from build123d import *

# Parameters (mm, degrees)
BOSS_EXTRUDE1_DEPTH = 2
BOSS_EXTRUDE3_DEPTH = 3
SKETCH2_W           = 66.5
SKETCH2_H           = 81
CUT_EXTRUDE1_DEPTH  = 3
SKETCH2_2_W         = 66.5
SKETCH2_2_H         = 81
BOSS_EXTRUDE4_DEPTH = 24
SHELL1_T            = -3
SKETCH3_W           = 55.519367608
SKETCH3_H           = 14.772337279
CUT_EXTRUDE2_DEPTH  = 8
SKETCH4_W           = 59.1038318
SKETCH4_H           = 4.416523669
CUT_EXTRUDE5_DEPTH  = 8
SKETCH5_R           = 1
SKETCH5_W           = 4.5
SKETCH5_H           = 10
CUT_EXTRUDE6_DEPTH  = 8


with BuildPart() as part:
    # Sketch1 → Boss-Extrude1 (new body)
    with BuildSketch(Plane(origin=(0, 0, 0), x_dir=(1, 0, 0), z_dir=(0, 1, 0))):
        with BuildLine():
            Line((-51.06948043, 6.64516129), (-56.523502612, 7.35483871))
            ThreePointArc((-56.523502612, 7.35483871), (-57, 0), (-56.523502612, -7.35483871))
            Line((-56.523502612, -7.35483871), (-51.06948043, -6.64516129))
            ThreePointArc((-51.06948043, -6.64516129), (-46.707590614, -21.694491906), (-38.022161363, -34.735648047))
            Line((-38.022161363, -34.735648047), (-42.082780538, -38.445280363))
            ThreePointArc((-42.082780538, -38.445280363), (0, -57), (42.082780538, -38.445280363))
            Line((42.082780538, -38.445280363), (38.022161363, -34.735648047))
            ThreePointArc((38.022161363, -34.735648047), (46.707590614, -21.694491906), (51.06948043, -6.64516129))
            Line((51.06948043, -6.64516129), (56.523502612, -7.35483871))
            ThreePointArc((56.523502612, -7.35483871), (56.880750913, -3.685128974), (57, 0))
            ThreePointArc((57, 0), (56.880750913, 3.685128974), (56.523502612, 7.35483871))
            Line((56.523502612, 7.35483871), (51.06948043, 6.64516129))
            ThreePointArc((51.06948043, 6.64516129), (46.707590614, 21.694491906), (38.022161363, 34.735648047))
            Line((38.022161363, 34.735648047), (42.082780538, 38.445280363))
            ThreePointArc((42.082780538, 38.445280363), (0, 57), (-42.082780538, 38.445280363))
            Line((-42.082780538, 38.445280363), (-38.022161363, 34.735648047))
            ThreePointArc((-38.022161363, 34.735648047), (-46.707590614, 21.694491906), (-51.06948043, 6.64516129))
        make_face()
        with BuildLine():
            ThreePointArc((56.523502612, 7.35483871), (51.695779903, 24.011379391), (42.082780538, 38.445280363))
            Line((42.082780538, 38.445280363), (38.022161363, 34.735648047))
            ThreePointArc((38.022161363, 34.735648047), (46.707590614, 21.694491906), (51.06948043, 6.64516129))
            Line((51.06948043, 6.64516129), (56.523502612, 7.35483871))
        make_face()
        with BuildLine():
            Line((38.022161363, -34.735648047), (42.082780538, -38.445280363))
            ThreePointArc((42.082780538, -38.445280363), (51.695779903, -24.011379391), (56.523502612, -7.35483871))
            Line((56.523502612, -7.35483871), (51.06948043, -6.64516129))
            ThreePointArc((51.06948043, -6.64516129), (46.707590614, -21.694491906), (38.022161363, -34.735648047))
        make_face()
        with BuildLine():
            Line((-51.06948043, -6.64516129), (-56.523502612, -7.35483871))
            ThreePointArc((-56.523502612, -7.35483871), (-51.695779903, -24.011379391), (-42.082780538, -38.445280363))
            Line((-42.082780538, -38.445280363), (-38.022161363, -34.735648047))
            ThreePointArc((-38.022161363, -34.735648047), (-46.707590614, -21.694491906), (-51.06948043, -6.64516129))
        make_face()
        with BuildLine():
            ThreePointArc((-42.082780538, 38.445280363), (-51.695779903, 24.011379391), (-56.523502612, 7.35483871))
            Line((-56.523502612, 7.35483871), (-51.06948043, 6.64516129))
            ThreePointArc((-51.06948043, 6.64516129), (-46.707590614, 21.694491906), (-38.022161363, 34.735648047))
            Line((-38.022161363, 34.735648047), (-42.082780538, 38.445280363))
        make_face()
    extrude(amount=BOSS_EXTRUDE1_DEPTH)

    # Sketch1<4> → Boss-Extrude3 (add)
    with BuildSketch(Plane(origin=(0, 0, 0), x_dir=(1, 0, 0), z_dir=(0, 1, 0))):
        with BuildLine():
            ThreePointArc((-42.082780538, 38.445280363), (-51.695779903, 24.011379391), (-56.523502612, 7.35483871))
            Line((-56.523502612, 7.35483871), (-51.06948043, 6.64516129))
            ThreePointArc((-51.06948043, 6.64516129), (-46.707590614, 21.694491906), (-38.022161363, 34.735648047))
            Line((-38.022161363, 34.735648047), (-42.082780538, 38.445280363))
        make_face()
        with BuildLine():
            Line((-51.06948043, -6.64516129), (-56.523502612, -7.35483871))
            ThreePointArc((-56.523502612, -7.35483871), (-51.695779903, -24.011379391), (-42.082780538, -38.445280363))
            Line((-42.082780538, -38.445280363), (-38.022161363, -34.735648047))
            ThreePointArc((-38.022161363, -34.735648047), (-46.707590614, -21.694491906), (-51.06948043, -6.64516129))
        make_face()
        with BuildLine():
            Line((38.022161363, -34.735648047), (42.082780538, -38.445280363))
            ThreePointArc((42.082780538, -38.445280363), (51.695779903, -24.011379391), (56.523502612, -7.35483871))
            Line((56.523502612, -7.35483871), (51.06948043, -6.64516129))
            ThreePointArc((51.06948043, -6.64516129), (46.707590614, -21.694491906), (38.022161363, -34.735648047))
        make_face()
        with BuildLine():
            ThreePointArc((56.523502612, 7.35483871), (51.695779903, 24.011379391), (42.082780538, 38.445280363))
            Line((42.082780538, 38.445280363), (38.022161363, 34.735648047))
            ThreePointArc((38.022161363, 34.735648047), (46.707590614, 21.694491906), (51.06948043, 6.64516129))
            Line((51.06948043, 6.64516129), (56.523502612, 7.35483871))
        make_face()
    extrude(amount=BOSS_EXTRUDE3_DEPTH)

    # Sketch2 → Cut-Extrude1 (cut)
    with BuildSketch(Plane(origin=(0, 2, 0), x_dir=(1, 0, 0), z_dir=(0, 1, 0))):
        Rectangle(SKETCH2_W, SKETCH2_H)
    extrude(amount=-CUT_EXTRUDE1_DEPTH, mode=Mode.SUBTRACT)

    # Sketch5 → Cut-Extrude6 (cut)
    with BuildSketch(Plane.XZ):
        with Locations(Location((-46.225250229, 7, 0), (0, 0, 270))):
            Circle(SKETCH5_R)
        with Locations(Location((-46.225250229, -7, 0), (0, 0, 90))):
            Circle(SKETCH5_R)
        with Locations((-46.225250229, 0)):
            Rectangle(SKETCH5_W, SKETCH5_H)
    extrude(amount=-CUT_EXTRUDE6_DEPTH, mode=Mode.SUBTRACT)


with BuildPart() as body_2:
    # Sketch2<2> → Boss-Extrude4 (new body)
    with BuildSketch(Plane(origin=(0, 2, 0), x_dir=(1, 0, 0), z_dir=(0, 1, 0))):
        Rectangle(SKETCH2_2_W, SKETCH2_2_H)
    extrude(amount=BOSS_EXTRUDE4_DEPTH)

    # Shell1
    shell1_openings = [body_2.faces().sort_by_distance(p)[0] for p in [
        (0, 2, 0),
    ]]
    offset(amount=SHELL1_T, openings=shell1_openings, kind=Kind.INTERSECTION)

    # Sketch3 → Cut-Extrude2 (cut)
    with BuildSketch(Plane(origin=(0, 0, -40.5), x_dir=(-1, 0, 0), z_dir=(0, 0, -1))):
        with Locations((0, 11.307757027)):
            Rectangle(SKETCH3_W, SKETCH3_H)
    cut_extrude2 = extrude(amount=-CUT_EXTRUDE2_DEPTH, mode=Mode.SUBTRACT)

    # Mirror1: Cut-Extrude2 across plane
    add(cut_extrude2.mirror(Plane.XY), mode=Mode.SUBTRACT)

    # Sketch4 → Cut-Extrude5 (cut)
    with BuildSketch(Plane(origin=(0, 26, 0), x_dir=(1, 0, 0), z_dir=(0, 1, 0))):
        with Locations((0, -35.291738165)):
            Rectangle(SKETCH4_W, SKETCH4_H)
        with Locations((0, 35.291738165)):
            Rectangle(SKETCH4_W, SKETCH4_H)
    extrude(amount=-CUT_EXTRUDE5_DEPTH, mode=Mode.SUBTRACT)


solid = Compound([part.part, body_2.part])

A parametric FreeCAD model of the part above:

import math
import FreeCAD as App
import Part
import Sketcher

V = App.Vector
Q = App.Units.Quantity


def faces_at(feature, points):
    """Names of the faces that lie closest to the given points."""
    faces = feature.Shape.Faces
    near = lambda p: min(range(len(faces)), key=lambda i: faces[i].distToShape(Part.Vertex(*p))[0])
    return sorted({f"Face{near(p) + 1}" for p in points})

doc = App.newDocument("Part")
params = doc.addObject("Spreadsheet::Sheet", "Params")
for row, (alias, value) in enumerate([
    ("sketch1_radius", "57 mm"),
    ("pad1_length", "2 mm"),
    ("sketch2_radius", "57 mm"),
    ("sketch2_radius2", "51.5 mm"),
    ("pad2_length", "3 mm"),
    ("sketch3_height", "81 mm"),
    ("sketch3_width", "66.5 mm"),
    ("pocket1_length", "3 mm"),
    ("sketch4_diameter", "2 mm"),
    ("sketch4_height", "10 mm"),
    ("sketch4_width", "4.5 mm"),
    ("pocket2_length", "8 mm"),
    ("sketch5_height", "81 mm"),
    ("sketch5_width", "66.5 mm"),
    ("pad3_length", "24 mm"),
    ("thickness_wall", "3 mm"),
    ("pocket3_length", "8 mm"),
    ("pocket4_length", "8 mm"),
], start=1):
    params.set(f"A{row}", alias)
    params.set(f"B{row}", "=" + value)
    params.setAlias(f"B{row}", alias)

body = doc.addObject("PartDesign::Body", "Body")

sketch1 = body.newObject("Sketcher::SketchObject", "Sketch")
sketch1.AttachmentSupport = (doc.getObject("XZ_Plane"), [""])
sketch1.MapMode = "FlatFace"
sketch1.addGeometry(Part.ArcOfCircle(Part.Circle(V(0, 0, 0), V(0, 0, 1), 57), math.radians(172.59), math.radians(187.41)), False)
sketch1.addGeometry(Part.ArcOfCircle(Part.Circle(V(0, 0, 0), V(0, 0, 1), 57), math.radians(138), math.radians(173)), False)
sketch1.addGeometry(Part.ArcOfCircle(Part.Circle(V(0, 0, 0), V(0, 0, 1), 57), math.radians(42), math.radians(138)), False)
sketch1.addGeometry(Part.ArcOfCircle(Part.Circle(V(0, 0, 0), V(0, 0, 1), 57), math.radians(7), math.radians(42)), False)
sketch1.addGeometry(Part.ArcOfCircle(Part.Circle(V(0, 0, 0), V(0, 0, 1), 57), math.radians(0), math.radians(7.41)), False)
sketch1.addGeometry(Part.ArcOfCircle(Part.Circle(V(0, 0, 0), V(0, 0, 1), 57), math.radians(-7.41), math.radians(0)), False)
sketch1.addGeometry(Part.ArcOfCircle(Part.Circle(V(0, 0, 0), V(0, 0, 1), 57), math.radians(-42), math.radians(-7)), False)
sketch1.addGeometry(Part.ArcOfCircle(Part.Circle(V(0, 0, 0), V(0, 0, 1), 57), math.radians(-138), math.radians(-42)), False)
sketch1.addGeometry(Part.ArcOfCircle(Part.Circle(V(0, 0, 0), V(0, 0, 1), 57), math.radians(-173), math.radians(-138)), False)
sketch1.addConstraint(Sketcher.Constraint("Tangent", 0, 1, 1, 2))
sketch1.addConstraint(Sketcher.Constraint("Tangent", 1, 1, 2, 2))
sketch1.addConstraint(Sketcher.Constraint("Tangent", 2, 1, 3, 2))
sketch1.addConstraint(Sketcher.Constraint("Tangent", 3, 1, 4, 2))
sketch1.addConstraint(Sketcher.Constraint("Tangent", 4, 1, 5, 2))
sketch1.addConstraint(Sketcher.Constraint("Tangent", 5, 1, 6, 2))
sketch1.addConstraint(Sketcher.Constraint("Tangent", 6, 1, 7, 2))
sketch1.addConstraint(Sketcher.Constraint("Tangent", 7, 1, 8, 2))
sketch1.addConstraint(Sketcher.Constraint("Tangent", 8, 1, 0, 2))
sketch1.addConstraint(Sketcher.Constraint("Coincident", 0, 3, -1, 1))
sketch1.addConstraint(Sketcher.Constraint("Coincident", 2, 3, -1, 1))
sketch1.addConstraint(Sketcher.Constraint("Coincident", 4, 3, -1, 1))
sketch1.addConstraint(Sketcher.Constraint("Coincident", 6, 3, -1, 1))
sketch1.addConstraint(Sketcher.Constraint("PointOnObject", 4, 1, -1))
sketch1.addConstraint(Sketcher.Constraint("Horizontal", 1, 1, 2, 1))
sketch1.addConstraint(Sketcher.Constraint("Horizontal", 0, 1, 3, 1))
sketch1.addConstraint(Sketcher.Constraint("Horizontal", 6, 1, 7, 1))
sketch1.addConstraint(Sketcher.Constraint("Horizontal", 5, 1, 8, 1))
sketch1.addConstraint(Sketcher.Constraint("Vertical", 3, 1, 5, 1))
sketch1.addConstraint(Sketcher.Constraint("Vertical", 2, 1, 6, 1))
sketch1.addConstraint(Sketcher.Constraint("Radius", 0, Q("57 mm")))
sketch1.addConstraint(Sketcher.Constraint("DistanceY", -1, 1, 0, 1, Q("7.354839 mm")))
sketch1.addConstraint(Sketcher.Constraint("DistanceX", 1, 1, -1, 1, Q("42.082781 mm")))
sketch1.setExpression("Constraints[20]", "Params.sketch1_radius")
pad1 = body.newObject("PartDesign::Pad", "Pad")
pad1.Profile = sketch1
pad1.setExpression("Length", "Params.pad1_length")
pad1.Reversed = True

sketch2 = body.newObject("Sketcher::SketchObject", "Sketch001")
sketch2.AttachmentSupport = (doc.getObject("XZ_Plane"), [""])
sketch2.MapMode = "FlatFace"
sketch2.addGeometry(Part.ArcOfCircle(Part.Circle(V(0, 0, 0), V(0, 0, 1), 57), math.radians(-173), math.radians(-138)), False)
sketch2.addGeometry(Part.LineSegment(V(-57, -7, 0), V(-51, -7, 0)), False)
sketch2.addGeometry(Part.ArcOfCircle(Part.Circle(V(0, 0, 0), V(0, 0, 1), 51), math.radians(-173), math.radians(-138)), False)
sketch2.addGeometry(Part.LineSegment(V(-38, -35, 0), V(-42, -38, 0)), False)
sketch2.addGeometry(Part.LineSegment(V(-51, 7, 0), V(-57, 7, 0)), False)
sketch2.addGeometry(Part.ArcOfCircle(Part.Circle(V(0, 0, 0), V(0, 0, 1), 57), math.radians(138), math.radians(173)), False)
sketch2.addGeometry(Part.LineSegment(V(-42, 38, 0), V(-38, 35, 0)), False)
sketch2.addGeometry(Part.ArcOfCircle(Part.Circle(V(0, 0, 0), V(0, 0, 1), 51), math.radians(138), math.radians(173)), False)
sketch2.addGeometry(Part.LineSegment(V(38, 35, 0), V(42, 38, 0)), False)
sketch2.addGeometry(Part.ArcOfCircle(Part.Circle(V(0, 0, 0), V(0, 0, 1), 57), math.radians(7), math.radians(42)), False)
sketch2.addGeometry(Part.LineSegment(V(57, 7, 0), V(51, 7, 0)), False)
sketch2.addGeometry(Part.ArcOfCircle(Part.Circle(V(0, 0, 0), V(0, 0, 1), 51), math.radians(7), math.radians(42)), False)
sketch2.addGeometry(Part.ArcOfCircle(Part.Circle(V(0, 0, 0), V(0, 0, 1), 57), math.radians(-42), math.radians(-7)), False)
sketch2.addGeometry(Part.LineSegment(V(42, -38, 0), V(38, -35, 0)), False)
sketch2.addGeometry(Part.ArcOfCircle(Part.Circle(V(0, 0, 0), V(0, 0, 1), 51), math.radians(-42), math.radians(-7)), False)
sketch2.addGeometry(Part.LineSegment(V(51, -7, 0), V(57, -7, 0)), False)
sketch2.addConstraint(Sketcher.Constraint("Coincident", 0, 1, 1, 1))
sketch2.addConstraint(Sketcher.Constraint("Coincident", 1, 2, 2, 1))
sketch2.addConstraint(Sketcher.Constraint("Coincident", 2, 2, 3, 1))
sketch2.addConstraint(Sketcher.Constraint("Coincident", 3, 2, 0, 2))
sketch2.addConstraint(Sketcher.Constraint("Coincident", 4, 2, 5, 2))
sketch2.addConstraint(Sketcher.Constraint("Coincident", 5, 1, 6, 1))
sketch2.addConstraint(Sketcher.Constraint("Coincident", 6, 2, 7, 1))
sketch2.addConstraint(Sketcher.Constraint("Coincident", 7, 2, 4, 1))
sketch2.addConstraint(Sketcher.Constraint("Coincident", 8, 2, 9, 2))
sketch2.addConstraint(Sketcher.Constraint("Coincident", 9, 1, 10, 1))
sketch2.addConstraint(Sketcher.Constraint("Coincident", 10, 2, 11, 1))
sketch2.addConstraint(Sketcher.Constraint("Coincident", 11, 2, 8, 1))
sketch2.addConstraint(Sketcher.Constraint("Coincident", 12, 1, 13, 1))
sketch2.addConstraint(Sketcher.Constraint("Coincident", 13, 2, 14, 1))
sketch2.addConstraint(Sketcher.Constraint("Coincident", 14, 2, 15, 1))
sketch2.addConstraint(Sketcher.Constraint("Coincident", 15, 2, 12, 2))
sketch2.addConstraint(Sketcher.Constraint("Coincident", 0, 3, -1, 1))
sketch2.addConstraint(Sketcher.Constraint("Coincident", 2, 3, -1, 1))
sketch2.addConstraint(Sketcher.Constraint("Coincident", 5, 3, -1, 1))
sketch2.addConstraint(Sketcher.Constraint("Coincident", 7, 3, -1, 1))
sketch2.addConstraint(Sketcher.Constraint("Coincident", 9, 3, -1, 1))
sketch2.addConstraint(Sketcher.Constraint("Coincident", 11, 3, -1, 1))
sketch2.addConstraint(Sketcher.Constraint("Coincident", 12, 3, -1, 1))
sketch2.addConstraint(Sketcher.Constraint("Coincident", 14, 3, -1, 1))
sketch2.addConstraint(Sketcher.Constraint("Equal", 0, 5))
sketch2.addConstraint(Sketcher.Constraint("Equal", 2, 7))
sketch2.addConstraint(Sketcher.Constraint("Equal", 5, 9))
sketch2.addConstraint(Sketcher.Constraint("Equal", 7, 11))
sketch2.addConstraint(Sketcher.Constraint("Equal", 9, 12))
sketch2.addConstraint(Sketcher.Constraint("Equal", 11, 14))
sketch2.addConstraint(Sketcher.Constraint("Parallel", 3, 8))
sketch2.addConstraint(Sketcher.Constraint("Parallel", 1, 10))
sketch2.addConstraint(Sketcher.Constraint("Parallel", 6, 13))
sketch2.addConstraint(Sketcher.Constraint("Parallel", 4, 15))
sketch2.addConstraint(Sketcher.Constraint("Horizontal", 5, 1, 8, 2))
sketch2.addConstraint(Sketcher.Constraint("Horizontal", 4, 2, 9, 1))
sketch2.addConstraint(Sketcher.Constraint("Horizontal", 7, 2, 10, 2))
sketch2.addConstraint(Sketcher.Constraint("Horizontal", 6, 2, 11, 2))
sketch2.addConstraint(Sketcher.Constraint("Horizontal", 3, 2, 12, 1))
sketch2.addConstraint(Sketcher.Constraint("Horizontal", 1, 2, 14, 2))
sketch2.addConstraint(Sketcher.Constraint("Vertical", 0, 1, 4, 2))
sketch2.addConstraint(Sketcher.Constraint("Vertical", 3, 2, 5, 1))
sketch2.addConstraint(Sketcher.Constraint("Radius", 0, Q("57 mm")))
sketch2.addConstraint(Sketcher.Constraint("Radius", 2, Q("51.5 mm")))
sketch2.addConstraint(Sketcher.Constraint("DistanceY", 1, 2, 4, 2, Q("14 mm")))
sketch2.addConstraint(Sketcher.Constraint("DistanceX", 1, 2, 3, 2, Q("8.9867 mm")))
sketch2.addConstraint(Sketcher.Constraint("DistanceY", 0, 1, -1, 1, Q("7.354839 mm")))
sketch2.addConstraint(Sketcher.Constraint("DistanceX", 2, 2, -1, 1, Q("38.022161 mm")))
sketch2.setExpression("Constraints[42]", "Params.sketch2_radius")
sketch2.setExpression("Constraints[43]", "Params.sketch2_radius2")
pad2 = body.newObject("PartDesign::Pad", "Pad001")
pad2.Profile = sketch2
pad2.setExpression("Length", "Params.pad2_length")
pad2.Reversed = True

sketch3 = body.newObject("Sketcher::SketchObject", "Sketch002")
sketch3.AttachmentSupport = (doc.getObject("XZ_Plane"), [""])
sketch3.MapMode = "FlatFace"
sketch3.AttachmentOffset = App.Placement(V(0, 0, -2), App.Rotation())
sketch3.addGeometry(Part.LineSegment(V(-33, -40, 0), V(-33, 40, 0)), False)
sketch3.addGeometry(Part.LineSegment(V(-33, 40, 0), V(33, 40, 0)), False)
sketch3.addGeometry(Part.LineSegment(V(33, 40, 0), V(33, -40, 0)), False)
sketch3.addGeometry(Part.LineSegment(V(33, -40, 0), V(-33, -40, 0)), False)
sketch3.addConstraint(Sketcher.Constraint("Coincident", 0, 2, 1, 1))
sketch3.addConstraint(Sketcher.Constraint("Coincident", 1, 2, 2, 1))
sketch3.addConstraint(Sketcher.Constraint("Coincident", 2, 2, 3, 1))
sketch3.addConstraint(Sketcher.Constraint("Coincident", 3, 2, 0, 1))
sketch3.addConstraint(Sketcher.Constraint("Vertical", 0))
sketch3.addConstraint(Sketcher.Constraint("Horizontal", 1))
sketch3.addConstraint(Sketcher.Constraint("Vertical", 2))
sketch3.addConstraint(Sketcher.Constraint("Horizontal", 3))
sketch3.addConstraint(Sketcher.Constraint("Symmetric", 0, 2, 2, 2, -1, 1))
sketch3.addConstraint(Sketcher.Constraint("DistanceY", 0, 1, 0, 2, Q("81 mm")))
sketch3.addConstraint(Sketcher.Constraint("DistanceX", 1, 1, 1, 2, Q("66.5 mm")))
sketch3.setExpression("Constraints[9]", "Params.sketch3_height")
sketch3.setExpression("Constraints[10]", "Params.sketch3_width")
pocket1 = body.newObject("PartDesign::Pocket", "Pocket")
pocket1.Profile = sketch3
pocket1.setExpression("Length", "Params.pocket1_length")
pocket1.Reversed = True

sketch4 = body.newObject("Sketcher::SketchObject", "Sketch003")
sketch4.AttachmentSupport = (doc.getObject("XZ_Plane"), [""])
sketch4.MapMode = "FlatFace"
sketch4.addGeometry(Part.Circle(V(-46.2, 7, 0), V(0, 0, 1), 1), False)
sketch4.addGeometry(Part.Circle(V(-46.2, -7, 0), V(0, 0, 1), 1), False)
sketch4.addGeometry(Part.LineSegment(V(-48.5, 5, 0), V(-48.5, -5, 0)), False)
sketch4.addGeometry(Part.LineSegment(V(-48.5, -5, 0), V(-44, -5, 0)), False)
sketch4.addGeometry(Part.LineSegment(V(-44, -5, 0), V(-44, 5, 0)), False)
sketch4.addGeometry(Part.LineSegment(V(-44, 5, 0), V(-48.5, 5, 0)), False)
sketch4.addConstraint(Sketcher.Constraint("Coincident", 2, 2, 3, 1))
sketch4.addConstraint(Sketcher.Constraint("Coincident", 3, 2, 4, 1))
sketch4.addConstraint(Sketcher.Constraint("Coincident", 4, 2, 5, 1))
sketch4.addConstraint(Sketcher.Constraint("Coincident", 5, 2, 2, 1))
sketch4.addConstraint(Sketcher.Constraint("Vertical", 2))
sketch4.addConstraint(Sketcher.Constraint("Horizontal", 3))
sketch4.addConstraint(Sketcher.Constraint("Vertical", 4))
sketch4.addConstraint(Sketcher.Constraint("Horizontal", 5))
sketch4.addConstraint(Sketcher.Constraint("Equal", 0, 1))
sketch4.addConstraint(Sketcher.Constraint("Symmetric", 0, 3, 1, 3, -1))
sketch4.addConstraint(Sketcher.Constraint("Diameter", 0, Q("2 mm")))
sketch4.addConstraint(Sketcher.Constraint("DistanceY", 2, 2, 2, 1, Q("10 mm")))
sketch4.addConstraint(Sketcher.Constraint("DistanceX", 3, 1, 3, 2, Q("4.5 mm")))
sketch4.addConstraint(Sketcher.Constraint("DistanceY", -1, 1, 0, 3, Q("7 mm")))
sketch4.addConstraint(Sketcher.Constraint("DistanceY", 2, 2, -1, 1, Q("5 mm")))
sketch4.addConstraint(Sketcher.Constraint("DistanceX", 2, 2, 1, 3, Q("2.25 mm")))
sketch4.addConstraint(Sketcher.Constraint("DistanceX", 0, 3, -1, 1, Q("46.22525 mm")))
sketch4.setExpression("Constraints[10]", "Params.sketch4_diameter")
sketch4.setExpression("Constraints[11]", "Params.sketch4_height")
sketch4.setExpression("Constraints[12]", "Params.sketch4_width")
pocket2 = body.newObject("PartDesign::Pocket", "Pocket001")
pocket2.Profile = sketch4
pocket2.setExpression("Length", "Params.pocket2_length")
body2 = doc.addObject("PartDesign::Body", "Body001")

sketch5 = body2.newObject("Sketcher::SketchObject", "Sketch004")
sketch5.AttachmentSupport = (doc.getObject("XZ_Plane001"), [""])
sketch5.MapMode = "FlatFace"
sketch5.AttachmentOffset = App.Placement(V(0, 0, -2), App.Rotation())
sketch5.addGeometry(Part.LineSegment(V(-33, -40, 0), V(-33, 40, 0)), False)
sketch5.addGeometry(Part.LineSegment(V(-33, 40, 0), V(33, 40, 0)), False)
sketch5.addGeometry(Part.LineSegment(V(33, 40, 0), V(33, -40, 0)), False)
sketch5.addGeometry(Part.LineSegment(V(33, -40, 0), V(-33, -40, 0)), False)
sketch5.addConstraint(Sketcher.Constraint("Coincident", 0, 2, 1, 1))
sketch5.addConstraint(Sketcher.Constraint("Coincident", 1, 2, 2, 1))
sketch5.addConstraint(Sketcher.Constraint("Coincident", 2, 2, 3, 1))
sketch5.addConstraint(Sketcher.Constraint("Coincident", 3, 2, 0, 1))
sketch5.addConstraint(Sketcher.Constraint("Vertical", 0))
sketch5.addConstraint(Sketcher.Constraint("Horizontal", 1))
sketch5.addConstraint(Sketcher.Constraint("Vertical", 2))
sketch5.addConstraint(Sketcher.Constraint("Horizontal", 3))
sketch5.addConstraint(Sketcher.Constraint("Symmetric", 0, 2, 2, 2, -1, 1))
sketch5.addConstraint(Sketcher.Constraint("DistanceY", 0, 1, 0, 2, Q("81 mm")))
sketch5.addConstraint(Sketcher.Constraint("DistanceX", 1, 1, 1, 2, Q("66.5 mm")))
sketch5.setExpression("Constraints[9]", "Params.sketch5_height")
sketch5.setExpression("Constraints[10]", "Params.sketch5_width")
pad3 = body2.newObject("PartDesign::Pad", "Pad002")
pad3.Profile = sketch5
pad3.setExpression("Length", "Params.pad3_length")
pad3.Reversed = True
doc.recompute()

thickness = body2.newObject("PartDesign::Thickness", "Thickness")
thickness.Base = (pad3, faces_at(pad3, [(0, 2, 0)]))
thickness.setExpression("Value", "Params.thickness_wall")
thickness.Reversed = True
thickness.Join = "Intersection"

sketch6 = body2.newObject("Sketcher::SketchObject", "Sketch005")
sketch6.AttachmentSupport = (doc.getObject("XY_Plane001"), [""])
sketch6.MapMode = "FlatFace"
sketch6.AttachmentOffset = App.Placement(V(0, 0, -40.5), App.Rotation())
sketch6.addGeometry(Part.LineSegment(V(28, 19, 0), V(28, 4, 0)), False)
sketch6.addGeometry(Part.LineSegment(V(28, 4, 0), V(-28, 4, 0)), False)
sketch6.addGeometry(Part.LineSegment(V(-28, 4, 0), V(-28, 19, 0)), False)
sketch6.addGeometry(Part.LineSegment(V(-28, 19, 0), V(28, 19, 0)), False)
sketch6.addConstraint(Sketcher.Constraint("Coincident", 0, 2, 1, 1))
sketch6.addConstraint(Sketcher.Constraint("Coincident", 1, 2, 2, 1))
sketch6.addConstraint(Sketcher.Constraint("Coincident", 2, 2, 3, 1))
sketch6.addConstraint(Sketcher.Constraint("Coincident", 3, 2, 0, 1))
sketch6.addConstraint(Sketcher.Constraint("Vertical", 0))
sketch6.addConstraint(Sketcher.Constraint("Horizontal", 1))
sketch6.addConstraint(Sketcher.Constraint("Vertical", 2))
sketch6.addConstraint(Sketcher.Constraint("Horizontal", 3))
sketch6.addConstraint(Sketcher.Constraint("DistanceX", 1, 2, 1, 1, Q("55.519368 mm")))
sketch6.addConstraint(Sketcher.Constraint("DistanceY", 0, 2, 0, 1, Q("14.772337 mm")))
sketch6.addConstraint(Sketcher.Constraint("DistanceY", -1, 1, 0, 2, Q("3.921588 mm")))
sketch6.addConstraint(Sketcher.Constraint("DistanceX", -1, 1, 0, 2, Q("27.759684 mm")))
pocket3 = body2.newObject("PartDesign::Pocket", "Pocket002")
pocket3.Profile = sketch6
pocket3.setExpression("Length", "Params.pocket3_length")
pocket3.Reversed = True
doc.recompute()

mirrored = body2.newObject("PartDesign::Mirrored", "Mirrored")
mirrored.Originals = [pocket3]
mirrored.MirrorPlane = (doc.getObject("XY_Plane001"), [""])
body2.Tip = mirrored

sketch7 = body2.newObject("Sketcher::SketchObject", "Sketch006")
sketch7.AttachmentSupport = (doc.getObject("XZ_Plane001"), [""])
sketch7.MapMode = "FlatFace"
sketch7.AttachmentOffset = App.Placement(V(0, 0, -26), App.Rotation())
sketch7.addGeometry(Part.LineSegment(V(-29.6, 33.1, 0), V(-29.6, 37.5, 0)), False)
sketch7.addGeometry(Part.LineSegment(V(-29.6, 37.5, 0), V(29.6, 37.5, 0)), False)
sketch7.addGeometry(Part.LineSegment(V(29.6, 37.5, 0), V(29.6, 33.1, 0)), False)
sketch7.addGeometry(Part.LineSegment(V(29.6, 33.1, 0), V(-29.6, 33.1, 0)), False)
sketch7.addGeometry(Part.LineSegment(V(-29.6, -37.5, 0), V(-29.6, -33.1, 0)), False)
sketch7.addGeometry(Part.LineSegment(V(-29.6, -33.1, 0), V(29.6, -33.1, 0)), False)
sketch7.addGeometry(Part.LineSegment(V(29.6, -33.1, 0), V(29.6, -37.5, 0)), False)
sketch7.addGeometry(Part.LineSegment(V(29.6, -37.5, 0), V(-29.6, -37.5, 0)), False)
sketch7.addConstraint(Sketcher.Constraint("Coincident", 0, 2, 1, 1))
sketch7.addConstraint(Sketcher.Constraint("Coincident", 1, 2, 2, 1))
sketch7.addConstraint(Sketcher.Constraint("Coincident", 2, 2, 3, 1))
sketch7.addConstraint(Sketcher.Constraint("Coincident", 3, 2, 0, 1))
sketch7.addConstraint(Sketcher.Constraint("Coincident", 4, 2, 5, 1))
sketch7.addConstraint(Sketcher.Constraint("Coincident", 5, 2, 6, 1))
sketch7.addConstraint(Sketcher.Constraint("Coincident", 6, 2, 7, 1))
sketch7.addConstraint(Sketcher.Constraint("Coincident", 7, 2, 4, 1))
sketch7.addConstraint(Sketcher.Constraint("Vertical", 0))
sketch7.addConstraint(Sketcher.Constraint("Horizontal", 1))
sketch7.addConstraint(Sketcher.Constraint("Vertical", 2))
sketch7.addConstraint(Sketcher.Constraint("Horizontal", 3))
sketch7.addConstraint(Sketcher.Constraint("Vertical", 4))
sketch7.addConstraint(Sketcher.Constraint("Horizontal", 5))
sketch7.addConstraint(Sketcher.Constraint("Vertical", 6))
sketch7.addConstraint(Sketcher.Constraint("Horizontal", 7))
sketch7.addConstraint(Sketcher.Constraint("Symmetric", 2, 2, 4, 2, -1, 1))
sketch7.addConstraint(Sketcher.Constraint("Symmetric", 0, 2, 6, 2, -1, 1))
sketch7.addConstraint(Sketcher.Constraint("Vertical", 3, 2, 4, 2))
sketch7.addConstraint(Sketcher.Constraint("DistanceY", 6, 2, 1, 2, Q("75 mm")))
sketch7.addConstraint(Sketcher.Constraint("DistanceX", 1, 1, 1, 2, Q("59.103832 mm")))
sketch7.addConstraint(Sketcher.Constraint("DistanceY", 0, 1, 0, 2, Q("4.416524 mm")))
pocket4 = body2.newObject("PartDesign::Pocket", "Pocket003")
pocket4.Profile = sketch7
pocket4.setExpression("Length", "Params.pocket4_length")
pocket4.Reversed = True

doc.recompute()
